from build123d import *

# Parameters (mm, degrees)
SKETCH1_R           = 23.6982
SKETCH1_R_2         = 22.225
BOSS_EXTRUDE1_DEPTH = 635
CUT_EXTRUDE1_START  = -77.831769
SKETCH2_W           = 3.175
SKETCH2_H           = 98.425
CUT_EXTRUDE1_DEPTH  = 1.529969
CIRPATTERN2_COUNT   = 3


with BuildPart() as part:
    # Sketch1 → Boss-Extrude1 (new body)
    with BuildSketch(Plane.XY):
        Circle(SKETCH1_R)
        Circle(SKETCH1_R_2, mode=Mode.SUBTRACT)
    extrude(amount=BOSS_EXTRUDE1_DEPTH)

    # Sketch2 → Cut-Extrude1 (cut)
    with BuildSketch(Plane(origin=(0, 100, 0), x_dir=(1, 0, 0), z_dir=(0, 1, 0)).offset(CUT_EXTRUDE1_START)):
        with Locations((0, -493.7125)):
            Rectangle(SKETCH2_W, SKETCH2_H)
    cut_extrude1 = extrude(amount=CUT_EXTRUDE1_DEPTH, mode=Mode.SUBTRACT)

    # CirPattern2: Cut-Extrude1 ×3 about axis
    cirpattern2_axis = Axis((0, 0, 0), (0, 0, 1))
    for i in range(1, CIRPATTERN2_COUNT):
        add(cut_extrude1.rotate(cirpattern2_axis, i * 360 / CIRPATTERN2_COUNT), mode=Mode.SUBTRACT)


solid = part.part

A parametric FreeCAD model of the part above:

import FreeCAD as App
import Part
import Sketcher
from FreeCAD import Vector
Q = App.Units.Quantity


def add_polygon(sketch, points):
    """Adds a closed chain of lines whose ends are joined by coincident constraints."""
    first, n = sketch.GeometryCount, len(points)
    for a, b in zip(points, points[1:] + points[:1]):
        sketch.addGeometry(Part.LineSegment(App.Vector(*a, 0), App.Vector(*b, 0)), False)
    for i in range(n):
        sketch.addConstraint(Sketcher.Constraint("Coincident", first + i, 2, first + (i + 1) % n, 1))

doc = App.newDocument("Part")
body = doc.addObject("PartDesign::Body", "Body")

# Sketch on XY plane
sketch1 = doc.addObject("Sketcher::SketchObject", "Sketch")
body.addObject(sketch1)
sketch1.AttachmentSupport = (doc.XY_Plane, [""])
sketch1.MapMode = "FlatFace"
sketch1.addGeometry([
    Part.Circle(Vector(0, 0, 0), Vector(0, 0, 1), 24),
    Part.Circle(Vector(0, 0, 0), Vector(0, 0, 1), 22),
], False)
sketch1.addConstraint([
    Sketcher.Constraint("Coincident", 0, 3, -1, 1),
    Sketcher.Constraint("Coincident", 1, 3, -1, 1),
    Sketcher.Constraint("Diameter", 1, Q("1.75 in")),
    Sketcher.Constraint("Diameter", 0, Q("1.866 in")),
])
pad1 = doc.addObject("PartDesign::Pad", "Pad")
body.addObject(pad1)
pad1.Profile = sketch1
pad1.Length = Q("25 in")

# Sketch on XZ plane
sketch2 = doc.addObject("Sketcher::SketchObject", "Sketch001")
body.addObject(sketch2)
sketch2.AttachmentSupport = (doc.XZ_Plane, [""])
sketch2.MapMode = "FlatFace"
sketch2.AttachmentOffset = App.Placement(Vector(0, 0, -22.168231), App.Rotation())
add_polygon(sketch2, [(-1.6, 444.5), (-1.6, 542.9), (1.6, 542.9), (1.6, 444.5)])  # lines 0-3
sketch2.addConstraint([
    Sketcher.Constraint("Vertical", 0),
    Sketcher.Constraint("Horizontal", 1),
    Sketcher.Constraint("Vertical", 2),
    Sketcher.Constraint("Horizontal", 3),
    Sketcher.Constraint("DistanceY", -1, 1, 2, 2, Q("17.5 in")),
    Sketcher.Constraint("DistanceX", 1, 1, 1, 2, Q("0.125 in")),
    Sketcher.Constraint("DistanceY", 0, 1, 0, 2, Q("3.875 in")),
    Sketcher.Constraint("DistanceX", 0, 2, -1, 1, Q("0.0625 in")),
])
pocket1 = doc.addObject("PartDesign::Pocket", "Pocket")
body.addObject(pocket1)
pocket1.Profile = sketch2
pocket1.Length = 1.529969
doc.recompute()

polarpattern = doc.addObject("PartDesign::PolarPattern", "PolarPattern")
body.addObject(polarpattern)
polarpattern.Originals = [pocket1]
polarpattern.Axis = (doc.Z_Axis, [""])
polarpattern.Angle = 360
polarpattern.Occurrences = 3
body.Tip = polarpattern

doc.recompute()
